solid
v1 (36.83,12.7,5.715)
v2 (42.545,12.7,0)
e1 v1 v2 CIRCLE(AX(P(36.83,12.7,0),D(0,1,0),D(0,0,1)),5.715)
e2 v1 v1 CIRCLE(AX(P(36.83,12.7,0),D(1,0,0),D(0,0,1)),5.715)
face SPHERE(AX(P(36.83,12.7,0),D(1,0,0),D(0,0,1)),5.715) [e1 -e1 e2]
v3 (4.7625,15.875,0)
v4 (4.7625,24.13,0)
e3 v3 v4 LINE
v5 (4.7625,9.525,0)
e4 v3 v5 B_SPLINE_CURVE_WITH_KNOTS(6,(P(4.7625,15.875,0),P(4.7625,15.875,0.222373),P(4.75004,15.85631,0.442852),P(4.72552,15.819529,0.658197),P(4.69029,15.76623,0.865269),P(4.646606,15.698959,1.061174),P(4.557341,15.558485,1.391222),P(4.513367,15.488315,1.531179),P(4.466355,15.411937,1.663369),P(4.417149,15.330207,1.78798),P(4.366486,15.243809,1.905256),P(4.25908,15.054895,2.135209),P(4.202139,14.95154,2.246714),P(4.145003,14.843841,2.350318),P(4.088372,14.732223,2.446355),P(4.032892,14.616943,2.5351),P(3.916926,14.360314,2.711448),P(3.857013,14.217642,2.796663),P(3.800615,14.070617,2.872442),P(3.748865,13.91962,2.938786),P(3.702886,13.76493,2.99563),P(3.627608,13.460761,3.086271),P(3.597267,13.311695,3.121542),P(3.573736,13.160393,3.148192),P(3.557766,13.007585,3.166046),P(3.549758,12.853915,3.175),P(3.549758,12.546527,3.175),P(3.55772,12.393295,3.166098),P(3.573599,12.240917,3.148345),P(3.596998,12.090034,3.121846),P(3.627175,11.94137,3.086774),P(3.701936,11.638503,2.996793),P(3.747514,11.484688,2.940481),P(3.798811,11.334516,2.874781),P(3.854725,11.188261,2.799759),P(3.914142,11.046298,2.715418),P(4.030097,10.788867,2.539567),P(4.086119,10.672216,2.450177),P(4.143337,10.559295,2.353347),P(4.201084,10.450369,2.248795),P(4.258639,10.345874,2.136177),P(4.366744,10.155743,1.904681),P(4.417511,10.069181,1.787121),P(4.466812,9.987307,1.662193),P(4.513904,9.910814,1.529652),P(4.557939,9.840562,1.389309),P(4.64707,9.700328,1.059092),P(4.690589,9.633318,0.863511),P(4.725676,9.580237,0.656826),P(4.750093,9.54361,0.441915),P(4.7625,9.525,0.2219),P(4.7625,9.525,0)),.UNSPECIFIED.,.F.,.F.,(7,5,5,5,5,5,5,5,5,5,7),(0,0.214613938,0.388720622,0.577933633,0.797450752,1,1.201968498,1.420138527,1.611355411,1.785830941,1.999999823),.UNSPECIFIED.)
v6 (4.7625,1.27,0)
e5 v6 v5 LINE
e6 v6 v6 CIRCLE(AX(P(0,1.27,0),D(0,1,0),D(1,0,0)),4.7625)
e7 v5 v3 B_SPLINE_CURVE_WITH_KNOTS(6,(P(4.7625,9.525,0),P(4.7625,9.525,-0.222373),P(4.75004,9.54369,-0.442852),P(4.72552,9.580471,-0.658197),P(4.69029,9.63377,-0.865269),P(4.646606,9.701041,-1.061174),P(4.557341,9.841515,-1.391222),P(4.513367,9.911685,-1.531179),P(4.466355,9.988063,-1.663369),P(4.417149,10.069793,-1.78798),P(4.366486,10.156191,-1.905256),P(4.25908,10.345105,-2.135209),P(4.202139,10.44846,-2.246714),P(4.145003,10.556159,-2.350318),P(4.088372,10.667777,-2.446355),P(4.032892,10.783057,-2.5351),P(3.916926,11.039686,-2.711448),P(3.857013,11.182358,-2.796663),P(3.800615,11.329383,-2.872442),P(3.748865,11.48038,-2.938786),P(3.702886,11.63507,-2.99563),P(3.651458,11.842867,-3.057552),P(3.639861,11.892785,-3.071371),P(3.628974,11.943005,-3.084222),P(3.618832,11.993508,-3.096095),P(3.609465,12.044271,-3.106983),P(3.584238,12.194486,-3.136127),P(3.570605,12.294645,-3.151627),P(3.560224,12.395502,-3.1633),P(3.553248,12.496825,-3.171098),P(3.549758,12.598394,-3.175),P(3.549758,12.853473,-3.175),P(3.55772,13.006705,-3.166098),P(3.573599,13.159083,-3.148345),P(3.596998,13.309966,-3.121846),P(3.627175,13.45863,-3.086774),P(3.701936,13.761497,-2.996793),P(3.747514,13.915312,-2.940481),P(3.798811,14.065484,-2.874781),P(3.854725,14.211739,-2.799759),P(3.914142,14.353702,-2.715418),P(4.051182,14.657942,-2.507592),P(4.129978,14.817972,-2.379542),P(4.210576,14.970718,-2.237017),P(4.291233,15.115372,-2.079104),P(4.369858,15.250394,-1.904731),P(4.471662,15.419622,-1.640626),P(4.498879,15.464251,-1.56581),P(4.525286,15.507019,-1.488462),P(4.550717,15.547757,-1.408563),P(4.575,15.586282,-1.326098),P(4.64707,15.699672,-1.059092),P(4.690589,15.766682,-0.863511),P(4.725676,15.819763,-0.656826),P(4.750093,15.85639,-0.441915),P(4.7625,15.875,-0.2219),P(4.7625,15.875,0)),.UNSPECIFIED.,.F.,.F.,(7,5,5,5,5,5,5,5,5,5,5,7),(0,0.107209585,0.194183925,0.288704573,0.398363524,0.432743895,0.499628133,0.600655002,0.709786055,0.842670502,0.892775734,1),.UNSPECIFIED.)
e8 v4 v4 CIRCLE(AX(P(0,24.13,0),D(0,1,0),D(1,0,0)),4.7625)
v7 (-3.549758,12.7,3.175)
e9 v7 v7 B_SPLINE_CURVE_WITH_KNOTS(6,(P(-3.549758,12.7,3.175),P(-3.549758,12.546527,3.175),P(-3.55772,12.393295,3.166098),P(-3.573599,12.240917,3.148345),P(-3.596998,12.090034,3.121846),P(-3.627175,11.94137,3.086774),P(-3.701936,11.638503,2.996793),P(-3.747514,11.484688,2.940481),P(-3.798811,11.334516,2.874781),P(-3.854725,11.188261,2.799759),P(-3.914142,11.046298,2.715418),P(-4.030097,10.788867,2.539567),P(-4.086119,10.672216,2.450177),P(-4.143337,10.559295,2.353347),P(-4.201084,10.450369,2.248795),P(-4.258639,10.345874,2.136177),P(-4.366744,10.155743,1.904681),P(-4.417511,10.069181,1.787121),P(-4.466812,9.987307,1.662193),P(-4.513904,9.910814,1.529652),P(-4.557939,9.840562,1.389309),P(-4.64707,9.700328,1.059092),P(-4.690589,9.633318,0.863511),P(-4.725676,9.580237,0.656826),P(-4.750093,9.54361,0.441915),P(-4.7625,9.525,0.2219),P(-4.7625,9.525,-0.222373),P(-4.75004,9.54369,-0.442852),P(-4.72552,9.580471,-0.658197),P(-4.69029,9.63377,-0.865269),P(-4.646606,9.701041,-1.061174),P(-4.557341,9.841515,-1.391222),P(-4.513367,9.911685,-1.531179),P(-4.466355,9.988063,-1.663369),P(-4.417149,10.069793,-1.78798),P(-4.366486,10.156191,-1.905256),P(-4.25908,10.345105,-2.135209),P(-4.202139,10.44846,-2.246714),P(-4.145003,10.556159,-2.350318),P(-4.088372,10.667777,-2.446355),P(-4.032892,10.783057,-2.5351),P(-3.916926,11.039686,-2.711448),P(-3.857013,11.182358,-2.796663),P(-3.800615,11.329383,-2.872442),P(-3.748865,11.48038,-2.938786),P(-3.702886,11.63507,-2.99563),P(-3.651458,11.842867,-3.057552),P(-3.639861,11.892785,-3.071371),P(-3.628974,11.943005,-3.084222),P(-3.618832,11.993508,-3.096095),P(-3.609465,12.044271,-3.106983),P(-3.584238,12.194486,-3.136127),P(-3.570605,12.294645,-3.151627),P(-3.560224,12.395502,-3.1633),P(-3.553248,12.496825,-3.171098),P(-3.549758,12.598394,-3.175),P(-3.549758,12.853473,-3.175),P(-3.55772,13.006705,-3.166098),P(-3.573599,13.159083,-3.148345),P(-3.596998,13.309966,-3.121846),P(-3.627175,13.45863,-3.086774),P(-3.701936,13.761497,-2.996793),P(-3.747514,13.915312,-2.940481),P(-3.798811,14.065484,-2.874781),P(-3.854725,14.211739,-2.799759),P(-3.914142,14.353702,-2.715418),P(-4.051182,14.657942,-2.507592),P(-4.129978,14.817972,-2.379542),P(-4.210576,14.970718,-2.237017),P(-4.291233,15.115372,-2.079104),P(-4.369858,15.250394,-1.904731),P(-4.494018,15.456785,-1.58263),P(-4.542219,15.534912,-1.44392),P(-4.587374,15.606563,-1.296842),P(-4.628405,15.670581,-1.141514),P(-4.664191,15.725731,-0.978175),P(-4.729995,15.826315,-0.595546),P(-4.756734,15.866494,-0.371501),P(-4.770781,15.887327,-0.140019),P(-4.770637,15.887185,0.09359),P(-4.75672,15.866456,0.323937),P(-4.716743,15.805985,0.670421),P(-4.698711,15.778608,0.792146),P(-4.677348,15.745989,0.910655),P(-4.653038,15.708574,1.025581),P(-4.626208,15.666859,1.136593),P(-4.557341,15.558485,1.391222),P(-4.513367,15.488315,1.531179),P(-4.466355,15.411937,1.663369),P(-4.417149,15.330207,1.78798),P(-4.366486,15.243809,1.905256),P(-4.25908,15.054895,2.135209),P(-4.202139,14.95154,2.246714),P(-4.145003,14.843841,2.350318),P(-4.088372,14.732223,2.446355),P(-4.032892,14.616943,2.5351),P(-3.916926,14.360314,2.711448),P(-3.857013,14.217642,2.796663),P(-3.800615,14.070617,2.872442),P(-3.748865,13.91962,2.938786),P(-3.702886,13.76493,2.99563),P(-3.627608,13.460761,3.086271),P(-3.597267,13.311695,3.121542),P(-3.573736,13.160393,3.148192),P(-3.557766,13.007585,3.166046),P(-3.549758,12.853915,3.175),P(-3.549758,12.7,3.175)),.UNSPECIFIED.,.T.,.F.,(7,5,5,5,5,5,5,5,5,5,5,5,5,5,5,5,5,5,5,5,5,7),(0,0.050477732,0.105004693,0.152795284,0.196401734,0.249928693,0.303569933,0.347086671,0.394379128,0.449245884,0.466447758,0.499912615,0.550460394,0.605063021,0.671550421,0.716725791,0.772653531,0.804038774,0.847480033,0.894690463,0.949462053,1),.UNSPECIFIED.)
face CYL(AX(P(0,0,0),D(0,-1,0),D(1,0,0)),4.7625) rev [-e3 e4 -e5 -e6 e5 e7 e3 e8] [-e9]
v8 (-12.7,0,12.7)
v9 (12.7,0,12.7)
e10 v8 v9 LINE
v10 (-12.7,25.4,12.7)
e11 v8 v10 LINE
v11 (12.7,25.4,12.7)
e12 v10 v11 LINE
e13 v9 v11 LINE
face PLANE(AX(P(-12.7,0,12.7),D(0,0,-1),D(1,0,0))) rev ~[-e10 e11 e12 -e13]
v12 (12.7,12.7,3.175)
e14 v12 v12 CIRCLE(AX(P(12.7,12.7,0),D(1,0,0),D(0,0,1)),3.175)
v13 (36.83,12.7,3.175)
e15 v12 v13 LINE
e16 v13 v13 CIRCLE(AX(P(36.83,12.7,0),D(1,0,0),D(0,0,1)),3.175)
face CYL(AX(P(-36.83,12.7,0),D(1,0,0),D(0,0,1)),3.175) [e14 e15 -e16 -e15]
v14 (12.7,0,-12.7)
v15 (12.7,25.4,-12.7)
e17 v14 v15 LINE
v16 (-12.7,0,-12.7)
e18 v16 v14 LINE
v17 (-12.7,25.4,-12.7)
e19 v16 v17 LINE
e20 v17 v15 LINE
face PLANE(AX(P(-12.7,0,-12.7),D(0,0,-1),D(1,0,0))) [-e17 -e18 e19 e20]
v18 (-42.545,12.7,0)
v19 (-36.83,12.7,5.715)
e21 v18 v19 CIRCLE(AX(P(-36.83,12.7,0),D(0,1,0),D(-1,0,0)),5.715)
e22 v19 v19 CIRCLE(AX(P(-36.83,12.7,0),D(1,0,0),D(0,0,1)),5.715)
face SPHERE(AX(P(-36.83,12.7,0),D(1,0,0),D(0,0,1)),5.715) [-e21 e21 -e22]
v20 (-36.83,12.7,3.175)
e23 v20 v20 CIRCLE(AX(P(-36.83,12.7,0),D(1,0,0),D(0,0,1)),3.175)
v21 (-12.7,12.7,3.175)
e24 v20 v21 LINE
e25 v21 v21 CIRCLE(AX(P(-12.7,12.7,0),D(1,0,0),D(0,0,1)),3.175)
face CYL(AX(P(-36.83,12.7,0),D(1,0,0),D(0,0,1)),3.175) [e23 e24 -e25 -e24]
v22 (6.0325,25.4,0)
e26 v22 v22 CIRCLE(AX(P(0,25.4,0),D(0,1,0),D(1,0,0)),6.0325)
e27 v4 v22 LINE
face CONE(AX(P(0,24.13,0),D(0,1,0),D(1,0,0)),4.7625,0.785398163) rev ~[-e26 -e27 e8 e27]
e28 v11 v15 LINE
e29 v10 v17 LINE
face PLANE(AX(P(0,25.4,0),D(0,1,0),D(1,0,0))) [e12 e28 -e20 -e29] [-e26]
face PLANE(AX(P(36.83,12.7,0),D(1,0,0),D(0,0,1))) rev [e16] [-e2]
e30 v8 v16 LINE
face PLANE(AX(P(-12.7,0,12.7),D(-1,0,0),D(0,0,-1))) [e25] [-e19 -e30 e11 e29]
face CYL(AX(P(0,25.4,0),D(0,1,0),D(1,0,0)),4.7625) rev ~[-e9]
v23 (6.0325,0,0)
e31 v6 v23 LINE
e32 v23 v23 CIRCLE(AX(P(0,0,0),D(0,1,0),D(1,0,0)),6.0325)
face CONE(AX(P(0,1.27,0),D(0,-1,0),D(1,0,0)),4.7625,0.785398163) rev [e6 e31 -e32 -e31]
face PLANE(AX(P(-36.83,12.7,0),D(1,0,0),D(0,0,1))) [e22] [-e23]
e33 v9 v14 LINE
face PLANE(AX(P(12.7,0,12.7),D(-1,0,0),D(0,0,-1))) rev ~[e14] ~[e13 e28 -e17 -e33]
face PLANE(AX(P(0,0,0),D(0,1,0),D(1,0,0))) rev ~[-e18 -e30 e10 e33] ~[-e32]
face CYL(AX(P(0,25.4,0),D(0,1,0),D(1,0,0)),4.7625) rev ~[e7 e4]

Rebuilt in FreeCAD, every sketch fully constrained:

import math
import FreeCAD as App
import Part
import Sketcher
from FreeCAD import Vector
Q = App.Units.Quantity


def edges_at(feature, points):
    """Names of the edges that pass closest to the given points."""
    edges = feature.Shape.Edges
    near = lambda p: min(range(len(edges)), key=lambda i: edges[i].distToShape(Part.Vertex(*p))[0])
    return sorted({f"Edge{near(p) + 1}" for p in points})

doc = App.newDocument("Part")
params = doc.addObject("Spreadsheet::Sheet", "Params")
for row, (alias, value) in enumerate([
    ("sketch1_width", "1 in"),
    ("sketch1_diameter", "0.375 in"),
    ("pad1_length", "1 in"),
    ("chamfer_size", "0.05 in"),
    ("sketch2_width", "2.9 in"),
    ("sketch2_height", "0.1 in"),
    ("sketch2_radius", "0.225 in"),
    ("revolution_angle", "360 deg"),
    ("sketch3_diameter", "0.375 in"),
], start=1):
    params.set(f"A{row}", alias)
    params.set(f"B{row}", "=" + value)
    params.setAlias(f"B{row}", alias)

body = doc.addObject("PartDesign::Body", "Body")

sketch1 = body.newObject("Sketcher::SketchObject", "Sketch")
sketch1.AttachmentSupport = (doc.getObject("XZ_Plane"), [""])
sketch1.MapMode = "FlatFace"
sketch1.addGeometry([
    Part.LineSegment(Vector(-12.7, -12.7, 0), Vector(-12.7, 12.7, 0)),
    Part.LineSegment(Vector(-12.7, 12.7, 0), Vector(12.7, 12.7, 0)),
    Part.LineSegment(Vector(12.7, 12.7, 0), Vector(12.7, -12.7, 0)),
    Part.LineSegment(Vector(12.7, -12.7, 0), Vector(-12.7, -12.7, 0)),
    Part.Circle(Vector(0, 0, 0), Vector(0, 0, 1), 4.7625),
], False)
sketch1.addConstraint([
    Sketcher.Constraint("Coincident", 0, 2, 1, 1),
    Sketcher.Constraint("Coincident", 1, 2, 2, 1),
    Sketcher.Constraint("Coincident", 2, 2, 3, 1),
    Sketcher.Constraint("Coincident", 3, 2, 0, 1),
    Sketcher.Constraint("Vertical", 0),
    Sketcher.Constraint("Horizontal", 1),
    Sketcher.Constraint("Vertical", 2),
    Sketcher.Constraint("Horizontal", 3),
    Sketcher.Constraint("Coincident", 4, 3, -1, 1),
    Sketcher.Constraint("Symmetric", 0, 2, 2, 2, -1, 1),
    Sketcher.Constraint("Equal", 3, 0),
    Sketcher.Constraint("DistanceX", 1, 1, 1, 2, Q("1 in")),
    Sketcher.Constraint("Diameter", 4, Q("0.375 in")),
])
sketch1.setExpression("Constraints[11]", "Params.sketch1_width")
sketch1.setExpression("Constraints[12]", "Params.sketch1_diameter")
pad1 = body.newObject("PartDesign::Pad", "Pad")
pad1.Profile = sketch1
pad1.setExpression("Length", "Params.pad1_length")
pad1.Reversed = True
doc.recompute()

chamfer = body.newObject("PartDesign::Chamfer", "Chamfer")
chamfer.Base = (pad1, edges_at(pad1, [(-4.763, 0, 0), (-4.763, 25.4, 0)]))
chamfer.setExpression("Size", "Params.chamfer_size")

sketch2 = body.newObject("Sketcher::SketchObject", "Sketch001")
sketch2.AttachmentSupport = (doc.getObject("XZ_Plane"), [""])
sketch2.MapMode = "FlatFace"
sketch2.AttachmentOffset = App.Placement(Vector(0, 0, -0.5 * 25.4), App.Rotation())
sketch2.addGeometry([
    Part.LineSegment(Vector(-36.83, 3.175, 0), Vector(36.83, 3.175, 0)),
    Part.LineSegment(Vector(36.83, 3.175, 0), Vector(36.83, 5.715, 0)),
    Part.ArcOfCircle(Part.Circle(Vector(36.83, 0, 0), Vector(0, 0, 1), 5.715), math.radians(0), math.radians(90)),
    Part.LineSegment(Vector(42.545, 0, 0), Vector(-42.545, 0, 0)),
    Part.ArcOfCircle(Part.Circle(Vector(-36.83, 0, 0), Vector(0, 0, 1), 5.715), math.radians(90), math.radians(180)),
    Part.LineSegment(Vector(-36.83, 5.715, 0), Vector(-36.83, 3.175, 0)),
], False)
sketch2.addConstraint([
    Sketcher.Constraint("Coincident", 0, 2, 1, 1),
    Sketcher.Constraint("Coincident", 1, 2, 2, 2),
    Sketcher.Constraint("Coincident", 2, 1, 3, 1),
    Sketcher.Constraint("Coincident", 3, 2, 4, 2),
    Sketcher.Constraint("Coincident", 4, 1, 5, 1),
    Sketcher.Constraint("Coincident", 5, 2, 0, 1),
    Sketcher.Constraint("Horizontal", 0),
    Sketcher.Constraint("Vertical", 1),
    Sketcher.Constraint("Horizontal", 3),
    Sketcher.Constraint("Vertical", 5),
    Sketcher.Constraint("Equal", 2, 4),
    Sketcher.Constraint("Symmetric", 2, 3, 4, 3, -1, 1),
    Sketcher.Constraint("Symmetric", 1, 2, 4, 1, -2),
    Sketcher.Constraint("PointOnObject", 2, 1, -1),
    Sketcher.Constraint("Vertical", 2, 3, 0, 2),
    Sketcher.Constraint("DistanceX", 0, 1, 0, 2, Q("2.9 in")),
    Sketcher.Constraint("DistanceY", 1, 1, 1, 2, Q("0.1 in")),
    Sketcher.Constraint("Radius", 2, Q("0.225 in")),
])
sketch2.setExpression("Constraints[15]", "Params.sketch2_width")
sketch2.setExpression("Constraints[16]", "Params.sketch2_height")
sketch2.setExpression("Constraints[17]", "Params.sketch2_radius")
revolution = body.newObject("PartDesign::Revolution", "Revolution")
revolution.Profile = sketch2
revolution.ReferenceAxis = (sketch2, ["H_Axis"])
revolution.setExpression("Angle", "Params.revolution_angle")

sketch3 = body.newObject("Sketcher::SketchObject", "Sketch002")
sketch3.AttachmentSupport = (doc.getObject("XZ_Plane"), [""])
sketch3.MapMode = "FlatFace"
sketch3.AttachmentOffset = App.Placement(Vector(0, 0, -1 * 25.4), App.Rotation())
sketch3.addGeometry(Part.Circle(Vector(0, 0, 0), Vector(0, 0, 1), 4.7625), False)
sketch3.addConstraint([
    Sketcher.Constraint("Coincident", 0, 3, -1, 1),
    Sketcher.Constraint("Diameter", 0, Q("0.375 in")),
])
sketch3.setExpression("Constraints[1]", "Params.sketch3_diameter")
pocket1 = body.newObject("PartDesign::Pocket", "Pocket")
pocket1.Profile = sketch3
pocket1.Type = "ThroughAll"
pocket1.Reversed = True

doc.recompute()
